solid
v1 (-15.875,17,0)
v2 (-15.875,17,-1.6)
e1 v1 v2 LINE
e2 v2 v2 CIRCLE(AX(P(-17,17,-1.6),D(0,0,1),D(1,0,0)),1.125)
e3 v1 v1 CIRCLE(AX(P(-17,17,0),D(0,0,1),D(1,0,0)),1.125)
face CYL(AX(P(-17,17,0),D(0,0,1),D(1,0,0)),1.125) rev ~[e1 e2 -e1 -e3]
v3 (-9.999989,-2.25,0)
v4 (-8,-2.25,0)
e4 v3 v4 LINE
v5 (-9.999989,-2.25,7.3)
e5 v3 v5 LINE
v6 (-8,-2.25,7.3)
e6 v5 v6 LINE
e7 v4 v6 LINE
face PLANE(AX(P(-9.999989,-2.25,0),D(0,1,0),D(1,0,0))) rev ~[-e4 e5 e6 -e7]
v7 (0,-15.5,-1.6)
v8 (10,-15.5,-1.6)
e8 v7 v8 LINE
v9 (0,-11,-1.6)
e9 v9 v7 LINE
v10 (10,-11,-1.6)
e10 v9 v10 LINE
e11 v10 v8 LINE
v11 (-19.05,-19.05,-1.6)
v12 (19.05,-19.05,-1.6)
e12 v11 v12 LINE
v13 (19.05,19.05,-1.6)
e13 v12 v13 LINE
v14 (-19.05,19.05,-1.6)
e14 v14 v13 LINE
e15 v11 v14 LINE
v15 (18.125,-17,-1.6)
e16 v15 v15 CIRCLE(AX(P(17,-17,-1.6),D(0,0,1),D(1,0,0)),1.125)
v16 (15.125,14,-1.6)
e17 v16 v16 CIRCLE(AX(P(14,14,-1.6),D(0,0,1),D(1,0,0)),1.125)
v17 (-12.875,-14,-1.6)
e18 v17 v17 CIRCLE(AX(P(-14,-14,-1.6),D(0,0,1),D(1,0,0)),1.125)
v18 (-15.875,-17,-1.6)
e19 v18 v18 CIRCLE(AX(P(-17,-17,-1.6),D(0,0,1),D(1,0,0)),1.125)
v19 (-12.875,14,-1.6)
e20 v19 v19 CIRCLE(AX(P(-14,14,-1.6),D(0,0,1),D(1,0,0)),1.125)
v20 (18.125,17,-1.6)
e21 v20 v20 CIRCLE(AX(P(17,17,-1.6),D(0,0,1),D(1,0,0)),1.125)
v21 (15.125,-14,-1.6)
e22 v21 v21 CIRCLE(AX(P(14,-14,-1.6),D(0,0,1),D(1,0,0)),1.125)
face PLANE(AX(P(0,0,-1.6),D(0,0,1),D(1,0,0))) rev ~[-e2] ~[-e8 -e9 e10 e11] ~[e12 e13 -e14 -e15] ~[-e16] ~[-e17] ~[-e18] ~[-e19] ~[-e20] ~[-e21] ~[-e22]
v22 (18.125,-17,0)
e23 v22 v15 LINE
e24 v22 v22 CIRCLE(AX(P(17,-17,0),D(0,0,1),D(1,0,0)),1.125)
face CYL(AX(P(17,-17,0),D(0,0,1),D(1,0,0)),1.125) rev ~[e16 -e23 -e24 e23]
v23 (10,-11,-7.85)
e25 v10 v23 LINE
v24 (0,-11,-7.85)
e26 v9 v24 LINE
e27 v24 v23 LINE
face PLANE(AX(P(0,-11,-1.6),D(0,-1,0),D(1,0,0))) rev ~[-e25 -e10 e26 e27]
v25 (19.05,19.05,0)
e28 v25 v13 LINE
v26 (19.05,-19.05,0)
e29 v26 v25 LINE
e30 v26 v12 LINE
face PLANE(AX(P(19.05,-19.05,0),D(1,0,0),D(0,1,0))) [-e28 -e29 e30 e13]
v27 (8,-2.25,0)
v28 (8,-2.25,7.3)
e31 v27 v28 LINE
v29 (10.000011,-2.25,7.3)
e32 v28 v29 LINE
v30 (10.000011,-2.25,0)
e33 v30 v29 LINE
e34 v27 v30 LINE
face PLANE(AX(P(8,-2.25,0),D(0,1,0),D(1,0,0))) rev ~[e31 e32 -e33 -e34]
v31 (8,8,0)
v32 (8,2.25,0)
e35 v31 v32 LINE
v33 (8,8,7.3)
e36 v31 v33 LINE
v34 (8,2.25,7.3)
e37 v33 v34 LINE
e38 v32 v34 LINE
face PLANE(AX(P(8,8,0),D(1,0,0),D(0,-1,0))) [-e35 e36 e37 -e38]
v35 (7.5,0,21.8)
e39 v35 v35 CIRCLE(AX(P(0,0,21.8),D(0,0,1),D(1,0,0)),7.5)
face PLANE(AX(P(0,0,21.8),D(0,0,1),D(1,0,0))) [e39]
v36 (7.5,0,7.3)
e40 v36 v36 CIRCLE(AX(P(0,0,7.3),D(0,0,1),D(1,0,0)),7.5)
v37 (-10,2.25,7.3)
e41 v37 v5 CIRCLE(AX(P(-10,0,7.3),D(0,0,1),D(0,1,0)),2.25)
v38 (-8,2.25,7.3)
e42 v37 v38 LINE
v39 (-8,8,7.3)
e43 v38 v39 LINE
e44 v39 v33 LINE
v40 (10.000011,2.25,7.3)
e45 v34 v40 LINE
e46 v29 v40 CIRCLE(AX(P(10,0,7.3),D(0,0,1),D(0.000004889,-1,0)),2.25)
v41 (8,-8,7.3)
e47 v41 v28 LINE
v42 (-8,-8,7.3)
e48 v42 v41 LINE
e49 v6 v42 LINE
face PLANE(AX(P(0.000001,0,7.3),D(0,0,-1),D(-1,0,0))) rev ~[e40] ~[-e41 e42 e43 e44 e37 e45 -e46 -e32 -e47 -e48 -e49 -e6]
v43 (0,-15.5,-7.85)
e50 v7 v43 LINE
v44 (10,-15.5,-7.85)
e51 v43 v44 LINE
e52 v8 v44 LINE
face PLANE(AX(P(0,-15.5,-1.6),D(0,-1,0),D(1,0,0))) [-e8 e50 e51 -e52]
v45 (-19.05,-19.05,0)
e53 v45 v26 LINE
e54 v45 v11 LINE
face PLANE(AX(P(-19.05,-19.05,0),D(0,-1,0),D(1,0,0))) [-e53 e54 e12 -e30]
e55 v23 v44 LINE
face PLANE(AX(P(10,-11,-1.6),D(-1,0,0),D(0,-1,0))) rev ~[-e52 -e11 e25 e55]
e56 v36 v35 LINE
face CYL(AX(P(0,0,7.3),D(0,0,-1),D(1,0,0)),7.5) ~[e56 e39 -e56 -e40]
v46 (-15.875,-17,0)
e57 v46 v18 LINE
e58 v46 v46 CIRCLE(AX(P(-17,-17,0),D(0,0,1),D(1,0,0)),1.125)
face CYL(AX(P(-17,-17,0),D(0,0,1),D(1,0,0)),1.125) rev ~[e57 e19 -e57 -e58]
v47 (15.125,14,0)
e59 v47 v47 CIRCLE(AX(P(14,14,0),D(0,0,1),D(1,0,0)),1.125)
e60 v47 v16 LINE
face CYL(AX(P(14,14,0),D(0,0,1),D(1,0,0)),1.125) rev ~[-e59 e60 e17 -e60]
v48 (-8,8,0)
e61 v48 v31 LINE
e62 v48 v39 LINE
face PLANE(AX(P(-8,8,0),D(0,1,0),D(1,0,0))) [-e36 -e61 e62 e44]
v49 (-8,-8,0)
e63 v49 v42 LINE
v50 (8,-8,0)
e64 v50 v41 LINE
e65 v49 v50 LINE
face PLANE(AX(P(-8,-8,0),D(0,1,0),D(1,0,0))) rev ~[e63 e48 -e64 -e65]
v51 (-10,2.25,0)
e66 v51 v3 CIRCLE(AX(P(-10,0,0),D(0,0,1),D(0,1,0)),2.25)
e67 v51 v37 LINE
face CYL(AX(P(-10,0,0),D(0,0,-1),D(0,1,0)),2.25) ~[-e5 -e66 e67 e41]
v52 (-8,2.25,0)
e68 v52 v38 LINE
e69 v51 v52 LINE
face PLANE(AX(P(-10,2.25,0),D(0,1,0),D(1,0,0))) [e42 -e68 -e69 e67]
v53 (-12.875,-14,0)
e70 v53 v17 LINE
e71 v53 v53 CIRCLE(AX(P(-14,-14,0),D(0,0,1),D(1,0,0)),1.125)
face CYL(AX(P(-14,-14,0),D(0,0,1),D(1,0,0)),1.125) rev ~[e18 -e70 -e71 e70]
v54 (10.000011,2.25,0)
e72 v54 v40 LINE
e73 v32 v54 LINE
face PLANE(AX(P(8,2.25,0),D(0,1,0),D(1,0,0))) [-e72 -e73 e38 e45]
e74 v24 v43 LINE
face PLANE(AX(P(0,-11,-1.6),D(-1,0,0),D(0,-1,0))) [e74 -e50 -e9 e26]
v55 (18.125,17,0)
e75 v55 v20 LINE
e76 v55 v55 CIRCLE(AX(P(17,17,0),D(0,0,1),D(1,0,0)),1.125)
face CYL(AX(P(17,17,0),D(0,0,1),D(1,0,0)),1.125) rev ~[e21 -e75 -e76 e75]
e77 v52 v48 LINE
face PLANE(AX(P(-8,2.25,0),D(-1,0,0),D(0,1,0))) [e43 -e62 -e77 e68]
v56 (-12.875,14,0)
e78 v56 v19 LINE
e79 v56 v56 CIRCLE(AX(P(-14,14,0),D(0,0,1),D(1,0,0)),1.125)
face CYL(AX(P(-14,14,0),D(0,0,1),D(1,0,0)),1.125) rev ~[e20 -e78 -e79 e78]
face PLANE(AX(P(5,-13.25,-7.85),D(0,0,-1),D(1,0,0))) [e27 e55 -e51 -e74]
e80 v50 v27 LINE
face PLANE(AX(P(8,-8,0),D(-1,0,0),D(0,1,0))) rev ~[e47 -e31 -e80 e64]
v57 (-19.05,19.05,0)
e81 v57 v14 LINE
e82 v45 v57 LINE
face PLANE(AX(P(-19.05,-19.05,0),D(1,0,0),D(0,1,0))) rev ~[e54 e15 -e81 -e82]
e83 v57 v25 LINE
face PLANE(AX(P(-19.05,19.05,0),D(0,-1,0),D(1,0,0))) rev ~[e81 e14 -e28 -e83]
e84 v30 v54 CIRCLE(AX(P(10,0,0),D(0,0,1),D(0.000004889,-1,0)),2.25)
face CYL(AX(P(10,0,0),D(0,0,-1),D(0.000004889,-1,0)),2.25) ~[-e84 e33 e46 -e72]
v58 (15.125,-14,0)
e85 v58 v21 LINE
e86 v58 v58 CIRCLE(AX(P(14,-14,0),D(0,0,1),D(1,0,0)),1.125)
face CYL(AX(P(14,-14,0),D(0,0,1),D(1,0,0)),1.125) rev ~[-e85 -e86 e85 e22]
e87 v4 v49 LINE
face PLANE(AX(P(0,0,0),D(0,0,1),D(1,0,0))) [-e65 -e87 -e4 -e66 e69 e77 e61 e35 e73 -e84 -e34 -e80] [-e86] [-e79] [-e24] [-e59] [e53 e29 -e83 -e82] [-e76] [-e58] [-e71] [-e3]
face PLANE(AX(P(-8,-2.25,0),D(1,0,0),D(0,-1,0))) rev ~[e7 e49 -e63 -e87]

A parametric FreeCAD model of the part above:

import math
import FreeCAD as App
import Part
import Sketcher
from FreeCAD import Vector
Q = App.Units.Quantity

doc = App.newDocument("Part")
params = doc.addObject("Spreadsheet::Sheet", "Params")
for row, (alias, value) in enumerate([
    ("sketch1_diameter", "2.25 mm"),
    ("sketch1_width", "38.1 mm"),
    ("pad1_length", "1.6 mm"),
    ("sketch2_width", "2 mm"),
    ("sketch2_width2", "16 mm"),
    ("sketch2_radius", "2.25 mm"),
    ("pad2_length", "7.3 mm"),
    ("sketch3_diameter", "15 mm"),
    ("pad3_length", "14.5 mm"),
    ("sketch4_width", "10 mm"),
    ("sketch4_height", "4.5 mm"),
    ("pad4_length", "6.25 mm"),
], start=1):
    params.set(f"A{row}", alias)
    params.set(f"B{row}", "=" + value)
    params.setAlias(f"B{row}", alias)

body = doc.addObject("PartDesign::Body", "Body")

# Sketch on XY plane
sketch1 = body.newObject("Sketcher::SketchObject", "Sketch")
sketch1.AttachmentSupport = (doc.getObject("XY_Plane"), [""])
sketch1.MapMode = "FlatFace"
sketch1.addGeometry([
    Part.LineSegment(Vector(-19.05, 19.05, 0), Vector(-19.05, -19.05, 0)),  # 0
    Part.LineSegment(Vector(-19.05, -19.05, 0), Vector(19.05, -19.05, 0)),  # 1
    Part.LineSegment(Vector(19.05, -19.05, 0), Vector(19.05, 19.05, 0)),  # 2
    Part.LineSegment(Vector(19.05, 19.05, 0), Vector(-19.05, 19.05, 0)),  # 3
    Part.Circle(Vector(-17, -17, 0), Vector(0, 0, 1), 1.125),  # 4
    Part.Circle(Vector(-14, -14, 0), Vector(0, 0, 1), 1.125),  # 5
    Part.Circle(Vector(17, -17, 0), Vector(0, 0, 1), 1.125),  # 6
    Part.Circle(Vector(14, -14, 0), Vector(0, 0, 1), 1.125),  # 7
    Part.Circle(Vector(-14, 14, 0), Vector(0, 0, 1), 1.125),  # 8
    Part.Circle(Vector(-17, 17, 0), Vector(0, 0, 1), 1.125),  # 9
    Part.Circle(Vector(14, 14, 0), Vector(0, 0, 1), 1.125),  # 10
    Part.Circle(Vector(17, 17, 0), Vector(0, 0, 1), 1.125),  # 11
], False)
sketch1.addConstraint([
    Sketcher.Constraint("Coincident", 0, 2, 1, 1),
    Sketcher.Constraint("Coincident", 1, 2, 2, 1),
    Sketcher.Constraint("Coincident", 2, 2, 3, 1),
    Sketcher.Constraint("Coincident", 3, 2, 0, 1),
    Sketcher.Constraint("Vertical", 0),
    Sketcher.Constraint("Horizontal", 1),
    Sketcher.Constraint("Vertical", 2),
    Sketcher.Constraint("Horizontal", 3),
    Sketcher.Constraint("Equal", 4, 5),
    Sketcher.Constraint("Equal", 5, 6),
    Sketcher.Constraint("Equal", 6, 7),
    Sketcher.Constraint("Equal", 7, 8),
    Sketcher.Constraint("Equal", 8, 9),
    Sketcher.Constraint("Equal", 9, 10),
    Sketcher.Constraint("Equal", 10, 11),
    Sketcher.Constraint("Symmetric", 7, 3, 8, 3, -1, 1),
    Sketcher.Constraint("Symmetric", 6, 3, 9, 3, -1, 1),
    Sketcher.Constraint("Symmetric", 5, 3, 10, 3, -1, 1),
    Sketcher.Constraint("Symmetric", 4, 3, 11, 3, -1, 1),
    Sketcher.Constraint("Symmetric", 0, 2, 2, 2, -1, 1),
    Sketcher.Constraint("Symmetric", 4, 3, 6, 3, -2),
    Sketcher.Constraint("Symmetric", 5, 3, 7, 3, -2),
    Sketcher.Constraint("Equal", 3, 0),
    Sketcher.Constraint("Diameter", 4, Q("2.25 mm")),
    Sketcher.Constraint("DistanceX", 1, 1, 1, 2, Q("38.1 mm")),
    Sketcher.Constraint("DistanceX", 4, 3, -1, 1, Q("17 mm")),
    Sketcher.Constraint("DistanceY", 4, 3, -1, 1, Q("17 mm")),
    Sketcher.Constraint("DistanceX", 5, 3, -1, 1, Q("14 mm")),
    Sketcher.Constraint("DistanceY", 5, 3, -1, 1, Q("14 mm")),
])
sketch1.setExpression("Constraints[23]", "Params.sketch1_diameter")
sketch1.setExpression("Constraints[24]", "Params.sketch1_width")
pad1 = body.newObject("PartDesign::Pad", "Pad")
pad1.Profile = sketch1
pad1.setExpression("Length", "Params.pad1_length")
pad1.Reversed = True

# Sketch on XY plane
sketch2 = body.newObject("Sketcher::SketchObject", "Sketch001")
sketch2.AttachmentSupport = (doc.getObject("XY_Plane"), [""])
sketch2.MapMode = "FlatFace"
sketch2.addGeometry([
    Part.LineSegment(Vector(-8, 8, 0), Vector(-8, 2.25, 0)),  # 0
    Part.LineSegment(Vector(-8, 2.25, 0), Vector(-10, 2.25, 0)),  # 1
    Part.ArcOfCircle(Part.Circle(Vector(-10, 0, 0), Vector(0, 0, 1), 2.25), math.radians(90), math.radians(270.00028)),  # 2
    Part.LineSegment(Vector(-9.999989, -2.25, 0), Vector(-8, -2.25, 0)),  # 3
    Part.LineSegment(Vector(-8, -2.25, 0), Vector(-8, -8, 0)),  # 4
    Part.LineSegment(Vector(-8, -8, 0), Vector(8, -8, 0)),  # 5
    Part.LineSegment(Vector(8, -8, 0), Vector(8, -2.25, 0)),  # 6
    Part.LineSegment(Vector(8, -2.25, 0), Vector(10.000011, -2.25, 0)),  # 7
    Part.ArcOfCircle(Part.Circle(Vector(10, 0, 0), Vector(0, 0, 1), 2.25), math.radians(-89.99972), math.radians(89.99972)),  # 8
    Part.LineSegment(Vector(10.000011, 2.25, 0), Vector(8, 2.25, 0)),  # 9
    Part.LineSegment(Vector(8, 2.25, 0), Vector(8, 8, 0)),  # 10
    Part.LineSegment(Vector(8, 8, 0), Vector(-8, 8, 0)),  # 11
], False)
sketch2.addConstraint([
    Sketcher.Constraint("Coincident", 0, 2, 1, 1),
    Sketcher.Constraint("Tangent", 1, 2, 2, 1),
    Sketcher.Constraint("Coincident", 2, 2, 3, 1),
    Sketcher.Constraint("Coincident", 3, 2, 4, 1),
    Sketcher.Constraint("Coincident", 4, 2, 5, 1),
    Sketcher.Constraint("Coincident", 5, 2, 6, 1),
    Sketcher.Constraint("Coincident", 6, 2, 7, 1),
    Sketcher.Constraint("Coincident", 7, 2, 8, 1),
    Sketcher.Constraint("Coincident", 8, 2, 9, 1),
    Sketcher.Constraint("Coincident", 9, 2, 10, 1),
    Sketcher.Constraint("Coincident", 10, 2, 11, 1),
    Sketcher.Constraint("Coincident", 11, 2, 0, 1),
    Sketcher.Constraint("Vertical", 0),
    Sketcher.Constraint("Horizontal", 1),
    Sketcher.Constraint("Horizontal", 3),
    Sketcher.Constraint("Vertical", 4),
    Sketcher.Constraint("Horizontal", 5),
    Sketcher.Constraint("Vertical", 6),
    Sketcher.Constraint("Horizontal", 7),
    Sketcher.Constraint("Horizontal", 9),
    Sketcher.Constraint("Vertical", 10),
    Sketcher.Constraint("Horizontal", 11),
    Sketcher.Constraint("Equal", 2, 8),
    Sketcher.Constraint("Symmetric", 2, 3, 8, 3, -1, 1),
    Sketcher.Constraint("Symmetric", 4, 2, 10, 2, -1, 1),
    Sketcher.Constraint("Symmetric", 3, 2, 6, 2, -2),
    Sketcher.Constraint("Vertical", 0, 2, 3, 2),
    Sketcher.Constraint("Vertical", 7, 2, 8, 2),
    Sketcher.Constraint("DistanceX", 1, 2, 1, 1, Q("2 mm")),
    Sketcher.Constraint("DistanceX", 5, 1, 5, 2, Q("16 mm")),
    Sketcher.Constraint("Radius", 2, Q("2.25 mm")),
    Sketcher.Constraint("DistanceY", 4, 2, -1, 1, Q("8 mm")),
    Sketcher.Constraint("DistanceX", 3, 1, 3, 2, Q("1.999989 mm")),
    Sketcher.Constraint("DistanceX", 7, 1, 7, 2, Q("2.000011 mm")),
])
sketch2.setExpression("Constraints[28]", "Params.sketch2_width")
sketch2.setExpression("Constraints[29]", "Params.sketch2_width2")
sketch2.setExpression("Constraints[30]", "Params.sketch2_radius")
pad2 = body.newObject("PartDesign::Pad", "Pad001")
pad2.Profile = sketch2
pad2.setExpression("Length", "Params.pad2_length")

# Sketch on XY plane
sketch3 = body.newObject("Sketcher::SketchObject", "Sketch002")
sketch3.AttachmentSupport = (doc.getObject("XY_Plane"), [""])
sketch3.MapMode = "FlatFace"
sketch3.AttachmentOffset = App.Placement(Vector(0, 0, 7.3), App.Rotation())
sketch3.addGeometry(Part.Circle(Vector(0, 0, 0), Vector(0, 0, 1), 7.5), False)
sketch3.addConstraint([
    Sketcher.Constraint("Coincident", 0, 3, -1, 1),
    Sketcher.Constraint("Diameter", 0, Q("15 mm")),
])
sketch3.setExpression("Constraints[1]", "Params.sketch3_diameter")
pad3 = body.newObject("PartDesign::Pad", "Pad002")
pad3.Profile = sketch3
pad3.setExpression("Length", "Params.pad3_length")

# Sketch on XY plane
sketch4 = body.newObject("Sketcher::SketchObject", "Sketch003")
sketch4.AttachmentSupport = (doc.getObject("XY_Plane"), [""])
sketch4.MapMode = "FlatFace"
sketch4.AttachmentOffset = App.Placement(Vector(0, 0, -1.6), App.Rotation())
sketch4.addGeometry([
    Part.LineSegment(Vector(0, -15.5, 0), Vector(0, -11, 0)),
    Part.LineSegment(Vector(0, -11, 0), Vector(10, -11, 0)),
    Part.LineSegment(Vector(10, -11, 0), Vector(10, -15.5, 0)),
    Part.LineSegment(Vector(10, -15.5, 0), Vector(0, -15.5, 0)),
], False)
sketch4.addConstraint([
    Sketcher.Constraint("Coincident", 0, 2, 1, 1),
    Sketcher.Constraint("Coincident", 1, 2, 2, 1),
    Sketcher.Constraint("Coincident", 2, 2, 3, 1),
    Sketcher.Constraint("Coincident", 3, 2, 0, 1),
    Sketcher.Constraint("Vertical", 0),
    Sketcher.Constraint("Horizontal", 1),
    Sketcher.Constraint("Vertical", 2),
    Sketcher.Constraint("Horizontal", 3),
    Sketcher.Constraint("PointOnObject", 0, 2, -2),
    Sketcher.Constraint("DistanceX", 1, 1, 1, 2, Q("10 mm")),
    Sketcher.Constraint("DistanceY", 0, 1, 0, 2, Q("4.5 mm")),
    Sketcher.Constraint("DistanceY", 0, 2, -1, 1, Q("11 mm")),
])
sketch4.setExpression("Constraints[9]", "Params.sketch4_width")
sketch4.setExpression("Constraints[10]", "Params.sketch4_height")
pad4 = body.newObject("PartDesign::Pad", "Pad003")
pad4.Profile = sketch4
pad4.setExpression("Length", "Params.pad4_length")
pad4.Reversed = True

doc.recompute()
